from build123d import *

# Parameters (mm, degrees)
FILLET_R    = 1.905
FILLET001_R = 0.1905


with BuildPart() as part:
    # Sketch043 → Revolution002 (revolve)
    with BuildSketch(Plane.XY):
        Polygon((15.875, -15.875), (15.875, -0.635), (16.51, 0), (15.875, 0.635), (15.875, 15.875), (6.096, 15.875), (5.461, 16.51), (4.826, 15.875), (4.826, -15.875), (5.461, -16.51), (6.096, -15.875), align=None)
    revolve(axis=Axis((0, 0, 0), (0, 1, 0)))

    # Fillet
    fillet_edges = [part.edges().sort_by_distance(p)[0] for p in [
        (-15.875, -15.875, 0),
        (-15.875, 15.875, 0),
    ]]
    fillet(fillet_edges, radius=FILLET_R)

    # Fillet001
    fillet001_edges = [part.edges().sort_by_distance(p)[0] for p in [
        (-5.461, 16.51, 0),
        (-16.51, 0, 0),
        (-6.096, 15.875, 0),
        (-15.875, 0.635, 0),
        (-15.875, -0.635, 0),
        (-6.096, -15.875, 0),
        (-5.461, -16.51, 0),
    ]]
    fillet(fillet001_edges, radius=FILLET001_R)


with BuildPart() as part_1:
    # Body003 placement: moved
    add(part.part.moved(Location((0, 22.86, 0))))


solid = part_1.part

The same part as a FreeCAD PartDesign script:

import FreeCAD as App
import Part
import Sketcher
from FreeCAD import Vector
Q = App.Units.Quantity


def edges_at(feature, points):
    """Names of the edges that pass closest to the given points."""
    edges = feature.Shape.Edges
    near = lambda p: min(range(len(edges)), key=lambda i: edges[i].distToShape(Part.Vertex(*p))[0])
    return sorted({f"Edge{near(p) + 1}" for p in points})

doc = App.newDocument("Part")
body = doc.addObject("PartDesign::Body", "Body")

# Sketch on XY plane
sketch1 = doc.addObject("Sketcher::SketchObject", "Sketch")
body.addObject(sketch1)
sketch1.AttachmentSupport = (doc.XY_Plane, [""])
sketch1.MapMode = "FlatFace"
sketch1.addGeometry([
    Part.LineSegment(Vector(15.9, -15.9, 0), Vector(15.9, -0.6, 0)),  # 0
    Part.LineSegment(Vector(15.9, -0.6, 0), Vector(16.5, 0, 0)),  # 1
    Part.LineSegment(Vector(16.5, 0, 0), Vector(15.9, 0.6, 0)),  # 2
    Part.LineSegment(Vector(15.9, 0.6, 0), Vector(15.9, 15.9, 0)),  # 3
    Part.LineSegment(Vector(15.9, 15.9, 0), Vector(6.1, 15.9, 0)),  # 4
    Part.LineSegment(Vector(6.1, 15.9, 0), Vector(5.5, 16.5, 0)),  # 5
    Part.LineSegment(Vector(5.5, 16.5, 0), Vector(4.8, 15.9, 0)),  # 6
    Part.LineSegment(Vector(4.8, 15.9, 0), Vector(4.8, -15.9, 0)),  # 7
    Part.LineSegment(Vector(4.8, -15.9, 0), Vector(5.5, -16.5, 0)),  # 8
    Part.LineSegment(Vector(5.5, -16.5, 0), Vector(6.1, -15.9, 0)),  # 9
    Part.LineSegment(Vector(6.1, -15.9, 0), Vector(15.9, -15.9, 0)),  # 10
], False)
sketch1.addConstraint([
    Sketcher.Constraint("Coincident", 0, 2, 1, 1),
    Sketcher.Constraint("Coincident", 1, 2, 2, 1),
    Sketcher.Constraint("Coincident", 2, 2, 3, 1),
    Sketcher.Constraint("Coincident", 3, 2, 4, 1),
    Sketcher.Constraint("Coincident", 4, 2, 5, 1),
    Sketcher.Constraint("Coincident", 5, 2, 6, 1),
    Sketcher.Constraint("Coincident", 6, 2, 7, 1),
    Sketcher.Constraint("Coincident", 7, 2, 8, 1),
    Sketcher.Constraint("Coincident", 8, 2, 9, 1),
    Sketcher.Constraint("Coincident", 9, 2, 10, 1),
    Sketcher.Constraint("Coincident", 10, 2, 0, 1),
    Sketcher.Constraint("Vertical", 0),
    Sketcher.Constraint("Vertical", 3),
    Sketcher.Constraint("Horizontal", 4),
    Sketcher.Constraint("Vertical", 7),
    Sketcher.Constraint("Horizontal", 10),
    Sketcher.Constraint("Symmetric", 0, 2, 2, 2, -1),
    Sketcher.Constraint("Symmetric", 5, 2, 8, 2, -1),
    Sketcher.Constraint("Symmetric", 4, 2, 9, 2, -1),
    Sketcher.Constraint("PointOnObject", 1, 2, -1),
    Sketcher.Constraint("Perpendicular", 1, 2),
    Sketcher.Constraint("Parallel", 2, 5),
    Sketcher.Constraint("Perpendicular", 5, 6),
    Sketcher.Constraint("Perpendicular", 6, 8),
    Sketcher.Constraint("Horizontal", 4, 2, 6, 2),
    Sketcher.Constraint("Equal", 2, 5),
    Sketcher.Constraint("DistanceY", 0, 1, 0, 2, Q("0.6 in")),
    Sketcher.Constraint("DistanceY", 7, 2, 7, 1, Q("1.25 in")),
    Sketcher.Constraint("DistanceX", 4, 2, 4, 1, Q("0.385 in")),
    Sketcher.Constraint("DistanceX", -1, 1, 1, 2, Q("0.65 in")),
])
revolution = doc.addObject("PartDesign::Revolution", "Revolution")
body.addObject(revolution)
revolution.Profile = sketch1
revolution.ReferenceAxis = (sketch1, ["V_Axis"])
revolution.Angle = 360
doc.recompute()

fillet = doc.addObject("PartDesign::Fillet", "Fillet")
body.addObject(fillet)
fillet.Base = (revolution, edges_at(revolution, [(-15.875, -15.875, 0), (-15.875, 15.875, 0)]))
fillet.Radius = Q("0.075 in")
doc.recompute()

fillet2 = doc.addObject("PartDesign::Fillet", "Fillet001")
body.addObject(fillet2)
fillet2.Base = (fillet, edges_at(fillet, [
    (-5.461, 16.51, 0),
    (-16.51, 0, 0),
    (-6.096, 15.875, 0),
    (-15.875, 0.635, 0),
    (-15.875, -0.635, 0),
    (-6.096, -15.875, 0),
    (-5.461, -16.51, 0),
]))
fillet2.Radius = Q("0.0075 in")
body2 = doc.addObject("PartDesign::Body", "Body001")
doc.recompute()

body.Placement = App.Placement(Vector(0, 22.86, 0), App.Rotation(Vector(0, 0, 1), 0))
boolean = doc.addObject("PartDesign::Boolean", "Boolean")
body2.addObject(boolean)
boolean.Type = "Fuse"
boolean.addObjects([body])

doc.recompute()
